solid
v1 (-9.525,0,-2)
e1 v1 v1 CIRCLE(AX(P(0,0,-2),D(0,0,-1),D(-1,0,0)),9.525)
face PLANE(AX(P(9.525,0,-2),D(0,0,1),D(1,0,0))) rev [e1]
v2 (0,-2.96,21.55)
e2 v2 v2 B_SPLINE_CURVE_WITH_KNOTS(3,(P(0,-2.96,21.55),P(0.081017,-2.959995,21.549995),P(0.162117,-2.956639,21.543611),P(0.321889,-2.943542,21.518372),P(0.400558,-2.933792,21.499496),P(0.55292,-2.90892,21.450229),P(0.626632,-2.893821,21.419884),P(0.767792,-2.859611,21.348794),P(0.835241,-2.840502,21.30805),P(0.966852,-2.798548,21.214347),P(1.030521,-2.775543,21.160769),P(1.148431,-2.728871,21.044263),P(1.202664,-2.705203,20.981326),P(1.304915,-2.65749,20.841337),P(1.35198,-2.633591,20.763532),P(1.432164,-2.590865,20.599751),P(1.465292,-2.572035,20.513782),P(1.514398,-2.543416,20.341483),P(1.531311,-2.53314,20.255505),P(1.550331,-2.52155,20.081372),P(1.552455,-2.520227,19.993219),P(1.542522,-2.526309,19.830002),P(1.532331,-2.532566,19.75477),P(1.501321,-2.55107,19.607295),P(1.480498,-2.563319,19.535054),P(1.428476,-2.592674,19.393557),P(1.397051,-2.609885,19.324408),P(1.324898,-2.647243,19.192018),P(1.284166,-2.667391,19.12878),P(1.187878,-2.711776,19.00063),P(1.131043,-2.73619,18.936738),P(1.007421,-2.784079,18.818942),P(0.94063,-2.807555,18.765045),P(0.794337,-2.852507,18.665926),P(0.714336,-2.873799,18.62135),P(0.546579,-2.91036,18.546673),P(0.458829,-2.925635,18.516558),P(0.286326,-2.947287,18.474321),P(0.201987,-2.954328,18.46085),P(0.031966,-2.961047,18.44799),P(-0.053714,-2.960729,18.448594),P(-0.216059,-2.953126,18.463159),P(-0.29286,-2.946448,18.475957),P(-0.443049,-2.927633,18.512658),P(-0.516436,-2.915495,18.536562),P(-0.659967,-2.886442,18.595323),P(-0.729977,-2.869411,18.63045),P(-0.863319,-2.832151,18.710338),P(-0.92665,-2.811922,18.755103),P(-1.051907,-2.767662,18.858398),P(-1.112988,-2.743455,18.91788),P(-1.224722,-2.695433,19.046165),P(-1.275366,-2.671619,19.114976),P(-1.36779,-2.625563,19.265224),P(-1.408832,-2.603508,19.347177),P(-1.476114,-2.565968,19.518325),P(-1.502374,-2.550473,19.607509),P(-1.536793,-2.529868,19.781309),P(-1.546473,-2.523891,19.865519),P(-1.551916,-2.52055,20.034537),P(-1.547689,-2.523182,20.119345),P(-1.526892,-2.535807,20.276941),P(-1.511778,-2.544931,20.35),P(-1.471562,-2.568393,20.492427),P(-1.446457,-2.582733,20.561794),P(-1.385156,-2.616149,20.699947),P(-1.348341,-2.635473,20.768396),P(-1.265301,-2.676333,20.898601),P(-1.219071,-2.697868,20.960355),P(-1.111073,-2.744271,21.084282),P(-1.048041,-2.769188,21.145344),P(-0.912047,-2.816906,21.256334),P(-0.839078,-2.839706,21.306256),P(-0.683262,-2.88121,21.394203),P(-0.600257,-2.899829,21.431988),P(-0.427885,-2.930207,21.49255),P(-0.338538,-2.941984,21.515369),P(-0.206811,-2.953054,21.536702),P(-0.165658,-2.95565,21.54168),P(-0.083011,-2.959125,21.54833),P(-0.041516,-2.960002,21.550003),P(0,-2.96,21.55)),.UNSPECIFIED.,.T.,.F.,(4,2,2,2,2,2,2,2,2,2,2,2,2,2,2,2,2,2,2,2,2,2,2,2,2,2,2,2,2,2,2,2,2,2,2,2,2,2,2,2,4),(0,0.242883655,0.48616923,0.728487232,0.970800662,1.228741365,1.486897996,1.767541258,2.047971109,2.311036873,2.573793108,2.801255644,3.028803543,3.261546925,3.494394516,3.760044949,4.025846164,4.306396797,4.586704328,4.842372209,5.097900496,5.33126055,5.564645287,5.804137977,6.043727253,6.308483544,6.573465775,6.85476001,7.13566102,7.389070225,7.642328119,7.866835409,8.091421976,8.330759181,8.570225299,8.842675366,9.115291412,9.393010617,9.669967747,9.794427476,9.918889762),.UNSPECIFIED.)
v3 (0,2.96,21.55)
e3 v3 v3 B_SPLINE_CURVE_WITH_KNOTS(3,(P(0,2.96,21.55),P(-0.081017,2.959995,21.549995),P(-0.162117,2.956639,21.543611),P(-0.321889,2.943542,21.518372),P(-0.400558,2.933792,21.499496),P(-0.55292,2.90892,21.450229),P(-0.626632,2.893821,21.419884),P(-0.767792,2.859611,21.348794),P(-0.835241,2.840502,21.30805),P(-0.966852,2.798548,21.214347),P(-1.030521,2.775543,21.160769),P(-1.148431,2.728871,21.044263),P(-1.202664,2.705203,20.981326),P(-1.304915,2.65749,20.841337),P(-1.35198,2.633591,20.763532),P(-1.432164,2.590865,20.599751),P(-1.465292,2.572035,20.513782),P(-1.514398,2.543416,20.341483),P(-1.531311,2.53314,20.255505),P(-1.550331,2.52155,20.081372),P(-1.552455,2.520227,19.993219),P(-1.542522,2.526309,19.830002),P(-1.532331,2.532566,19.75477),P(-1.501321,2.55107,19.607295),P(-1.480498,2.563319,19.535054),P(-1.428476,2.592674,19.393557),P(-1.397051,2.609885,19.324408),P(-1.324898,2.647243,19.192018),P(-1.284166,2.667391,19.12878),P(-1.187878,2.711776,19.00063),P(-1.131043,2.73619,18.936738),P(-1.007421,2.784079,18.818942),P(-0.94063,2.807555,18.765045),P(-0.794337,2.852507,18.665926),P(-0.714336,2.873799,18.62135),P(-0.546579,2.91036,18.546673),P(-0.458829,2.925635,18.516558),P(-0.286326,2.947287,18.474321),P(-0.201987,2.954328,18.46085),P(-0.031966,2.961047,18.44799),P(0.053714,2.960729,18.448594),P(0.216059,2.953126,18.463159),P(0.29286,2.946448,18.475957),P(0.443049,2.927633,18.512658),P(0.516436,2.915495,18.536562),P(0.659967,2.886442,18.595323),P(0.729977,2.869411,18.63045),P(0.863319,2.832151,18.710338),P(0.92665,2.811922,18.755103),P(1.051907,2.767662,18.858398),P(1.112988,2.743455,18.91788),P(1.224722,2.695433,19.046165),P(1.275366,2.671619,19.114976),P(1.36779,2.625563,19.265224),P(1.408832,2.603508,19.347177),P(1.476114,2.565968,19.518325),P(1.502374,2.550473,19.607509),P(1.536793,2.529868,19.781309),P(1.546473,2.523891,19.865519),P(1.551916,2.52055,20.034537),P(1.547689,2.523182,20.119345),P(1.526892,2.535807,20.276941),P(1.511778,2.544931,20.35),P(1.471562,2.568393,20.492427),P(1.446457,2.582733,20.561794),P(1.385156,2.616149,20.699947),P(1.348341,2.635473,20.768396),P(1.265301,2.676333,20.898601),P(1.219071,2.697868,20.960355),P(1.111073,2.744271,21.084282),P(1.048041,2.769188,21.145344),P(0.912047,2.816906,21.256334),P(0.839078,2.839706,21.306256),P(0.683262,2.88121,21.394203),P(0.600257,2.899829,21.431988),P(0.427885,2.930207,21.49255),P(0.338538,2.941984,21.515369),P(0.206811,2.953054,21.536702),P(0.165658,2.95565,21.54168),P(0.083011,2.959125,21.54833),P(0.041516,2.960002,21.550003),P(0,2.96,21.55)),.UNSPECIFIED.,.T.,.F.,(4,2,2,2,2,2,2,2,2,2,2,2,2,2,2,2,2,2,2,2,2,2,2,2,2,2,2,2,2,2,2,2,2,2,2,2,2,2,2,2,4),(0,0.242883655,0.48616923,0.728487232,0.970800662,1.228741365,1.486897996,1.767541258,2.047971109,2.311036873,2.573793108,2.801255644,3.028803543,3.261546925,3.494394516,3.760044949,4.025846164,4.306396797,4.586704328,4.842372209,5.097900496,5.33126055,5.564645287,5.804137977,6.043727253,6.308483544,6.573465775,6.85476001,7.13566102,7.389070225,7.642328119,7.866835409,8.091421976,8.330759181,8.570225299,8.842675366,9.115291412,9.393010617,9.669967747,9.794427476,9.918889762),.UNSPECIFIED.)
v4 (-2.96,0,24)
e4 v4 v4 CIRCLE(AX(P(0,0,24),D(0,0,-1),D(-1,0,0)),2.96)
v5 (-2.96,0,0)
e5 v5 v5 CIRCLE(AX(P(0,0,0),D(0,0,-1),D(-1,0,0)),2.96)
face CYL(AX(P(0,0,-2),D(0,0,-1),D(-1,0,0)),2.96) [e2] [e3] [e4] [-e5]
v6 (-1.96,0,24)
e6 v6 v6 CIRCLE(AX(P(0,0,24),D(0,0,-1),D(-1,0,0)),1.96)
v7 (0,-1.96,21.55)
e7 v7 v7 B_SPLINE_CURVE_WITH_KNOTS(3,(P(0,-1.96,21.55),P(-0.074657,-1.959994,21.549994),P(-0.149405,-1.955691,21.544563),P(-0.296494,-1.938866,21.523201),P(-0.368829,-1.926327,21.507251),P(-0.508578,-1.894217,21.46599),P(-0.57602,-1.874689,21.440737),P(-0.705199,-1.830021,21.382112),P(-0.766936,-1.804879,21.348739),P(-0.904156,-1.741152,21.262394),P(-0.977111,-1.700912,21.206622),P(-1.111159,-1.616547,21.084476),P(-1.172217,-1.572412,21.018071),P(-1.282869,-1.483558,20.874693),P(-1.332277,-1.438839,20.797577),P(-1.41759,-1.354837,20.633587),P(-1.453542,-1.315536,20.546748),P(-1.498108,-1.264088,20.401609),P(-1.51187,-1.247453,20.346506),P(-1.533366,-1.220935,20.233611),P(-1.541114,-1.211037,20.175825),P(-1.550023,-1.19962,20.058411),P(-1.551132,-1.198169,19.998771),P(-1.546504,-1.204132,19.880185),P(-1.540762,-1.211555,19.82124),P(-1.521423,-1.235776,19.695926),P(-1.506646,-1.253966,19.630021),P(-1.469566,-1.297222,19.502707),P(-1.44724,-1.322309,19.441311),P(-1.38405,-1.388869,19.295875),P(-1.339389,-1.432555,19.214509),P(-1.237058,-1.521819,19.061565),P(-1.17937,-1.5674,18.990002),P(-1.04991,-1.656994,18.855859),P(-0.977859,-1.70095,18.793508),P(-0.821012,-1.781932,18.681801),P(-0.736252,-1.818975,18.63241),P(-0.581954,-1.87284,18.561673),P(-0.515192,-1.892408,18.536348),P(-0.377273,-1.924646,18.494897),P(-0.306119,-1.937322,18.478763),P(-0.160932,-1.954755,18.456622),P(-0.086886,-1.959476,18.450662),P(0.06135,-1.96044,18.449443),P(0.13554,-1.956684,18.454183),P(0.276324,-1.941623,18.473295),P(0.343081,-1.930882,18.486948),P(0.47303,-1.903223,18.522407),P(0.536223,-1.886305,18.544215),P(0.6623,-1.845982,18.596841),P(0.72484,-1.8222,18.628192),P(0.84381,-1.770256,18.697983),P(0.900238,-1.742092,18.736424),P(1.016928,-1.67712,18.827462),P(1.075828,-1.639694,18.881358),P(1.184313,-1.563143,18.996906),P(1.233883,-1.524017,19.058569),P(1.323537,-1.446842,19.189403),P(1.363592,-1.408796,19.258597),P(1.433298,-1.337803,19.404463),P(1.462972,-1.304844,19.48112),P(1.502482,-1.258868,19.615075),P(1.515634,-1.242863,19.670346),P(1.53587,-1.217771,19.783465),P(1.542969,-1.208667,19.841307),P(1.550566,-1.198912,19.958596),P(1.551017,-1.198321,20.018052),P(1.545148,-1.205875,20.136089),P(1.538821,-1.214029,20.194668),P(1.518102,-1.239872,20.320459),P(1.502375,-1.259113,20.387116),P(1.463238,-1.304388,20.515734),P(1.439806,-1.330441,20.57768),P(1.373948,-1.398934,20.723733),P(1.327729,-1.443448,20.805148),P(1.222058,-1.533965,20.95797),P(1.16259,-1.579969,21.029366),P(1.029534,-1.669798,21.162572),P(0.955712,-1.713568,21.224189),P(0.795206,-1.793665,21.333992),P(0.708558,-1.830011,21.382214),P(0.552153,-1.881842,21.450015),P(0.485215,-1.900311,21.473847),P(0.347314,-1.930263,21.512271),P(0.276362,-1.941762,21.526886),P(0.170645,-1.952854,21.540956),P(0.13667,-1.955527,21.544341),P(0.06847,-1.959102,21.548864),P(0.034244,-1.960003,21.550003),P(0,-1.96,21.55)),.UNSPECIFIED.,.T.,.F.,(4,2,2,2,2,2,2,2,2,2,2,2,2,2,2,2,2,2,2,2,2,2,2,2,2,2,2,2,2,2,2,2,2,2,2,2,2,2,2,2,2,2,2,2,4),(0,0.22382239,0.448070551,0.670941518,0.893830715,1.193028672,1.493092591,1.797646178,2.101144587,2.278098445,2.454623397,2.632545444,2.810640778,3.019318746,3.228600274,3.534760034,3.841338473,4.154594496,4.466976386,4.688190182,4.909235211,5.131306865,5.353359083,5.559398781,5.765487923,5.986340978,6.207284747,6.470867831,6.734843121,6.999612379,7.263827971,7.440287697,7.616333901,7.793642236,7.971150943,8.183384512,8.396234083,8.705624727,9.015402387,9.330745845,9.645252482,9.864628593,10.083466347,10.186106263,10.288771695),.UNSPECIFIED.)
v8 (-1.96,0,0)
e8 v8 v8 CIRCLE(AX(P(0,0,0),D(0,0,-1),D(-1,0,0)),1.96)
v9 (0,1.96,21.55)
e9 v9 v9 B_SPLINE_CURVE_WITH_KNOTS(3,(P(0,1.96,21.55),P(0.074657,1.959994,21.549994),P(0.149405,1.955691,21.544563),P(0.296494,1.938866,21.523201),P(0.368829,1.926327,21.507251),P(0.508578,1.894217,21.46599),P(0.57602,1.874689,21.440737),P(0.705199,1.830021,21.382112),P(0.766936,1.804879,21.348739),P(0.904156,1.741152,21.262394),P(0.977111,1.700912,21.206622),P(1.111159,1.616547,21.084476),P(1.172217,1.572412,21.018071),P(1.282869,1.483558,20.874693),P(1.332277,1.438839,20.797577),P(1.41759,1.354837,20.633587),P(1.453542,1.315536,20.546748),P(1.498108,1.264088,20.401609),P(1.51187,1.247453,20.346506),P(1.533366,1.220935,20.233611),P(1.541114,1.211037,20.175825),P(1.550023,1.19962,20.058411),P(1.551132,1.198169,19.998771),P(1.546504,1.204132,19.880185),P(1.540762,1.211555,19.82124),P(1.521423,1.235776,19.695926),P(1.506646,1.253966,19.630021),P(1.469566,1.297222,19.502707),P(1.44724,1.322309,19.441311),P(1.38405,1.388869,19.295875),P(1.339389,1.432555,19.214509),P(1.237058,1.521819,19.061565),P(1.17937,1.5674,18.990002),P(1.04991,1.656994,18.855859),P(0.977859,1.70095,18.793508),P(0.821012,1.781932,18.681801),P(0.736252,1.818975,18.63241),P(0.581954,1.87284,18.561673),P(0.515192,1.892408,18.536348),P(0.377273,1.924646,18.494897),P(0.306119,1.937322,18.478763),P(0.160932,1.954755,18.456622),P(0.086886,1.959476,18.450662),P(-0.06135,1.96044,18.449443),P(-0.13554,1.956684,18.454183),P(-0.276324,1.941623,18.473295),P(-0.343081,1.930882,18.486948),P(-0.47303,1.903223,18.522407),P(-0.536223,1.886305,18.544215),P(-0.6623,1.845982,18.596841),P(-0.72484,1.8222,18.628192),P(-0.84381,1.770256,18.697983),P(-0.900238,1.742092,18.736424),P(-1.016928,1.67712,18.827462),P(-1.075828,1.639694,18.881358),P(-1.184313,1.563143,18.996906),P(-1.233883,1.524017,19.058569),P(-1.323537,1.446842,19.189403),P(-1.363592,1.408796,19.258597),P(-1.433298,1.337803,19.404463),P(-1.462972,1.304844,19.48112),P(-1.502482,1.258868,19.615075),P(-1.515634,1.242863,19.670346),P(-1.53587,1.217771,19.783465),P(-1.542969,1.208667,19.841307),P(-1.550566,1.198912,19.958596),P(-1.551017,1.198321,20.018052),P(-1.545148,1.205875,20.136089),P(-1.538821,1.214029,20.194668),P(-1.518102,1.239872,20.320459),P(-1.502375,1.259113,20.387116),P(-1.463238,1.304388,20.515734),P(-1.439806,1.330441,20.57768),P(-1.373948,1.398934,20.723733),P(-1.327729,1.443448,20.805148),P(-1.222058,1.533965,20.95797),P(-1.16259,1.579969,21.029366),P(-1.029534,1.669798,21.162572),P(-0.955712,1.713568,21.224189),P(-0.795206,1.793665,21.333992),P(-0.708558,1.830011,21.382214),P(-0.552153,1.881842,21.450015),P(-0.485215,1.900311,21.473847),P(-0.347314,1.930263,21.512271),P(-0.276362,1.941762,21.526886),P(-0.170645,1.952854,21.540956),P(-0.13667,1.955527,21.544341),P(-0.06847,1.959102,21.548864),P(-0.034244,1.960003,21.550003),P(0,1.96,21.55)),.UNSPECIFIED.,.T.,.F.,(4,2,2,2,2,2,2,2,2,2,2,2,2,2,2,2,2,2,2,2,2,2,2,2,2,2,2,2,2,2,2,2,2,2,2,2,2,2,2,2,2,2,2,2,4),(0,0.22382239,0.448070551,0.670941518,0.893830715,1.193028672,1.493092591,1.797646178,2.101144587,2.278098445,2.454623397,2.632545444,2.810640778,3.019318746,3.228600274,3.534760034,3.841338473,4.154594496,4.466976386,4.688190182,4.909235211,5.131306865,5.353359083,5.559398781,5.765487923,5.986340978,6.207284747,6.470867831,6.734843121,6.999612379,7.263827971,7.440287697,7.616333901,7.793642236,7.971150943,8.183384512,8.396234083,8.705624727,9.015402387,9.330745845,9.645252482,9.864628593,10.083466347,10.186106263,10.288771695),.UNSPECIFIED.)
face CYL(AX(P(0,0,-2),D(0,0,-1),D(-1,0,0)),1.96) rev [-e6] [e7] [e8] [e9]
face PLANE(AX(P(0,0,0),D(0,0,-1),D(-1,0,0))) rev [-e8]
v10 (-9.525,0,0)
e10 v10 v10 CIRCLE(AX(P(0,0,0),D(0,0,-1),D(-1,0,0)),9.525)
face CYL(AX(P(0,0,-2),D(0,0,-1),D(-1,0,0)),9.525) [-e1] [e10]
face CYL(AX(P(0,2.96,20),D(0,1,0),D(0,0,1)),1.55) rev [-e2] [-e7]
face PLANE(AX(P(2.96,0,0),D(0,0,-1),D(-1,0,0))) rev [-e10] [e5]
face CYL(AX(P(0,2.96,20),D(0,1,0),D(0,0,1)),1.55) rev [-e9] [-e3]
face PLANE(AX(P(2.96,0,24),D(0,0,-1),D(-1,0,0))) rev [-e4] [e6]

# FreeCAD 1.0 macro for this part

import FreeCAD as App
import Part
import Sketcher
from FreeCAD import Vector

doc = App.newDocument("Part")
body = doc.addObject("PartDesign::Body", "Body")

# Sketch on XZ plane
sketch1 = body.newObject("Sketcher::SketchObject", "Sketch")
sketch1.AttachmentSupport = (doc.getObject("XZ_Plane"), [""])
sketch1.MapMode = "FlatFace"
sketch1.addGeometry(Part.LineSegment(Vector(2, 0, 0), Vector(2, 24, 0)), False)
sketch1.addGeometry(Part.LineSegment(Vector(2, 24, 0), Vector(3, 24, 0)), False)
sketch1.addGeometry(Part.LineSegment(Vector(3, 24, 0), Vector(3, 0, 0)), False)
sketch1.addGeometry(Part.LineSegment(Vector(3, 0, 0), Vector(9.5, 0, 0)), False)
sketch1.addGeometry(Part.LineSegment(Vector(9.5, 0, 0), Vector(9.5, -2, 0)), False)
sketch1.addGeometry(Part.LineSegment(Vector(9.5, -2, 0), Vector(0, -2, 0)), False)
sketch1.addGeometry(Part.LineSegment(Vector(0, -2, 0), Vector(0, 0, 0)), False)
sketch1.addGeometry(Part.LineSegment(Vector(0, 0, 0), Vector(2, 0, 0)), False)
sketch1.addConstraint(Sketcher.Constraint("Coincident", 0, 2, 1, 1))
sketch1.addConstraint(Sketcher.Constraint("Coincident", 1, 2, 2, 1))
sketch1.addConstraint(Sketcher.Constraint("Coincident", 2, 2, 3, 1))
sketch1.addConstraint(Sketcher.Constraint("Coincident", 3, 2, 4, 1))
sketch1.addConstraint(Sketcher.Constraint("Coincident", 4, 2, 5, 1))
sketch1.addConstraint(Sketcher.Constraint("Coincident", 5, 2, 6, 1))
sketch1.addConstraint(Sketcher.Constraint("Coincident", 6, 2, 7, 1))
sketch1.addConstraint(Sketcher.Constraint("Coincident", 7, 2, 0, 1))
sketch1.addConstraint(Sketcher.Constraint("Vertical", 0))
sketch1.addConstraint(Sketcher.Constraint("Horizontal", 1))
sketch1.addConstraint(Sketcher.Constraint("Vertical", 2))
sketch1.addConstraint(Sketcher.Constraint("Horizontal", 3))
sketch1.addConstraint(Sketcher.Constraint("Vertical", 4))
sketch1.addConstraint(Sketcher.Constraint("Horizontal", 5))
sketch1.addConstraint(Sketcher.Constraint("Vertical", 6))
sketch1.addConstraint(Sketcher.Constraint("Horizontal", 7))
sketch1.addConstraint(Sketcher.Constraint("Coincident", 6, 2, -1, 1))
sketch1.addConstraint(Sketcher.Constraint("PointOnObject", 2, 2, -1))
sketch1.addConstraint(Sketcher.Constraint("DistanceX", 1, 1, 1, 2, 1.0))
sketch1.addConstraint(Sketcher.Constraint("DistanceY", 0, 1, 0, 2, 24.0))
sketch1.addConstraint(Sketcher.Constraint("DistanceY", 4, 2, 4, 1, 2.0))
sketch1.addConstraint(Sketcher.Constraint("DistanceX", 7, 1, 7, 2, 1.96))
sketch1.addConstraint(Sketcher.Constraint("DistanceX", 3, 1, 3, 2, 6.565))
revolution = body.newObject("PartDesign::Revolution", "Revolution")
revolution.Profile = sketch1
revolution.ReferenceAxis = (sketch1, ["V_Axis"])
revolution.Angle = 360

# Sketch on XZ plane
sketch2 = body.newObject("Sketcher::SketchObject", "Sketch001")
sketch2.AttachmentSupport = (doc.getObject("XZ_Plane"), [""])
sketch2.MapMode = "FlatFace"
sketch2.AttachmentOffset = App.Placement(Vector(0, 0, -2.96), App.Rotation())
sketch2.addGeometry(Part.Circle(Vector(0, 20, 0), Vector(0, 0, 1), 1.6), False)
sketch2.addConstraint(Sketcher.Constraint("PointOnObject", 0, 3, -2))
sketch2.addConstraint(Sketcher.Constraint("Diameter", 0, 3.1))
sketch2.addConstraint(Sketcher.Constraint("DistanceY", -1, 1, 0, 3, 20.0))
doc.recompute()
hole = body.newObject("PartDesign::Hole", "Hole")
hole.Profile = sketch2
hole.ThreadType = "None"
hole.Diameter = 3.1
hole.DepthType = "ThroughAll"
hole.Reversed = True

doc.recompute()
